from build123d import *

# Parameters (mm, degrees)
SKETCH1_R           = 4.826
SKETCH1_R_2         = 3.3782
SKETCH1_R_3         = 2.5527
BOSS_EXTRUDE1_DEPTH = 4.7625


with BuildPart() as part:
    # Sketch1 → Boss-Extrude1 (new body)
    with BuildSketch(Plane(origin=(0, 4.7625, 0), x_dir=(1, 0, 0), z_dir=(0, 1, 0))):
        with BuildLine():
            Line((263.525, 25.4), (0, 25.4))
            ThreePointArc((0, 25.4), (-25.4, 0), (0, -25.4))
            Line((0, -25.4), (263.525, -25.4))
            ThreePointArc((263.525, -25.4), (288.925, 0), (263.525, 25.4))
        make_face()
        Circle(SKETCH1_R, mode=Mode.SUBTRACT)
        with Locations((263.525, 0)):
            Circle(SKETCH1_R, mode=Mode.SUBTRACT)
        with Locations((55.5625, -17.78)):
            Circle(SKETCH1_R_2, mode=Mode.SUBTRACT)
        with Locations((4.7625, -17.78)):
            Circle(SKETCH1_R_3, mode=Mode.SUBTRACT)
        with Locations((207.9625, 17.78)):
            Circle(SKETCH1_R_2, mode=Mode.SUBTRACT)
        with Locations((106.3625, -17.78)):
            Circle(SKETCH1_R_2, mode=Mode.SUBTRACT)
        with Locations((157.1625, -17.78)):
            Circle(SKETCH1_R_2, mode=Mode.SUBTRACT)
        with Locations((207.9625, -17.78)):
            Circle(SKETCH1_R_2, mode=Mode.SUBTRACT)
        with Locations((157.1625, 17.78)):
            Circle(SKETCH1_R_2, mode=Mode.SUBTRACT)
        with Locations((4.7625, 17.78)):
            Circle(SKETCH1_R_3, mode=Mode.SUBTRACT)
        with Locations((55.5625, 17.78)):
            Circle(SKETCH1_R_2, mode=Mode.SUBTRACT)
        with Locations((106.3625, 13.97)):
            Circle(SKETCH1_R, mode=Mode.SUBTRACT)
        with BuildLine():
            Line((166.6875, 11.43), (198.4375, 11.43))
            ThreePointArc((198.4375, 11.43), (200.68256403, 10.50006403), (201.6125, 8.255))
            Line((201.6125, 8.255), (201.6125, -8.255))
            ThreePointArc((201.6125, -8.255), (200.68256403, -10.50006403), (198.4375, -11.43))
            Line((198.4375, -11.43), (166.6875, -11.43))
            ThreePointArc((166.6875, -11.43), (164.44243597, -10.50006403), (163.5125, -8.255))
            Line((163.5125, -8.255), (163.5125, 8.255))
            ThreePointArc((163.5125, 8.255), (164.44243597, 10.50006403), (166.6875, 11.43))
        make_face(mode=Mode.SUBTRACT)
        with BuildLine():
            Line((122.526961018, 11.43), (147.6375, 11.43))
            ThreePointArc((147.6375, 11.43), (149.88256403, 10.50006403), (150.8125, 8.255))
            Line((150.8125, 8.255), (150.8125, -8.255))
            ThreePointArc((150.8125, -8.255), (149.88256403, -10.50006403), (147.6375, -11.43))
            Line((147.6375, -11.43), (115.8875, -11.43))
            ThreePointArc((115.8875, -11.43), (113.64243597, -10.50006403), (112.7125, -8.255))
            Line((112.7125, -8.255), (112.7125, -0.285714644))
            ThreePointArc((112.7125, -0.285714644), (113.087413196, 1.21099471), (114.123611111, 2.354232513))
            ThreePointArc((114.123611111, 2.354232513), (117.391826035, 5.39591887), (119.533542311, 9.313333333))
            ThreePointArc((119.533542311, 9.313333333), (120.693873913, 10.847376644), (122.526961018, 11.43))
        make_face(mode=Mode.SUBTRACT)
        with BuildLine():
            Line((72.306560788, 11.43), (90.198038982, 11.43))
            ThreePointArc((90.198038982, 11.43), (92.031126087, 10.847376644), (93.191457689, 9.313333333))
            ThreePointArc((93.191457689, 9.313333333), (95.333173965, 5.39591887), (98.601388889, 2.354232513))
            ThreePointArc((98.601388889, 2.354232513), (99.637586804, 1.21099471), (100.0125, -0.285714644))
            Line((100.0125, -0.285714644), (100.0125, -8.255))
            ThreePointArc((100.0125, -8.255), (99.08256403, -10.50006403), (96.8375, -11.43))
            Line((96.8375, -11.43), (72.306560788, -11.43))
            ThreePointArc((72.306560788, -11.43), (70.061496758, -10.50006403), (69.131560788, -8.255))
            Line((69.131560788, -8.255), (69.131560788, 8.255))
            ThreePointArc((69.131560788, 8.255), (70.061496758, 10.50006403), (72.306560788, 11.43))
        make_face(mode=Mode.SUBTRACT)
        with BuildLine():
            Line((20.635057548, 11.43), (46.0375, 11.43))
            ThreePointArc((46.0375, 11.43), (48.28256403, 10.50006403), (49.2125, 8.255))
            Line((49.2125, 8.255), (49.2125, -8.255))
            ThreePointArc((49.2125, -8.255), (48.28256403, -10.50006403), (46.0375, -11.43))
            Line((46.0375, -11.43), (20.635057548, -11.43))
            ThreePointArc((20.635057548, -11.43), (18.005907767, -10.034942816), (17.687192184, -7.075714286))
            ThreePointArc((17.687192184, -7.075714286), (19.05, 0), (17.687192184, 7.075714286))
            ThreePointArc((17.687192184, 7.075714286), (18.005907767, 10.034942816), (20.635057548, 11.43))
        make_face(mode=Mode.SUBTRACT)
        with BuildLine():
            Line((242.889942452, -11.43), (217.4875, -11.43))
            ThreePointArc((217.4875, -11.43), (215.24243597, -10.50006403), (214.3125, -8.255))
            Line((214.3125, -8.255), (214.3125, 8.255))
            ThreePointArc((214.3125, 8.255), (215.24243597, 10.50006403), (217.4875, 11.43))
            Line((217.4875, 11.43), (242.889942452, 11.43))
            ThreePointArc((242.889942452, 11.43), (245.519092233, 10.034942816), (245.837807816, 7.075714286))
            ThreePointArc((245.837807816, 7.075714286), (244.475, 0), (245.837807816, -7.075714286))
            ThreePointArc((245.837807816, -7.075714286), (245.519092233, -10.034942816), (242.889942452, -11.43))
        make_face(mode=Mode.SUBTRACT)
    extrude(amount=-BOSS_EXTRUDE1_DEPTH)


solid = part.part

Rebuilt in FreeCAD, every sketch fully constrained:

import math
import FreeCAD as App
import Part
import Sketcher
Q = App.Units.Quantity

doc = App.newDocument("Part")
params = doc.addObject("Spreadsheet::Sheet", "Params")
for row, (alias, value) in enumerate([
    ("sketch1_radius", "1 in"),
    ("sketch1_diameter", "0.38 in"),
    ("sketch1_radius2", "0.75 in"),
    ("sketch1_radius3", "0.55 in"),
    ("sketch1_diameter2", "0.201 in"),
    ("pad1_length", "0.1875 in"),
], start=1):
    params.set(f"A{row}", alias)
    params.set(f"B{row}", "=" + value)
    params.setAlias(f"B{row}", alias)

body = doc.addObject("PartDesign::Body", "Body")

# Sketch on XZ plane
sketch1 = doc.addObject("Sketcher::SketchObject", "Sketch")
body.addObject(sketch1)
sketch1.AttachmentSupport = (doc.XZ_Plane, [""])
sketch1.MapMode = "FlatFace"
sketch1.AttachmentOffset = App.Placement(App.Vector(0, 0, -0.1875 * 25.4), App.Rotation())
sketch1.addGeometry([
    Part.LineSegment(App.Vector(263.525, -25.4, 0), App.Vector(0, -25.4, 0)),  # 0
    Part.ArcOfCircle(Part.Circle(App.Vector(0, 0, 0), App.Vector(0, 0, 1), 25.4), math.radians(90), math.radians(270)),  # 1
    Part.LineSegment(App.Vector(0, 25.4, 0), App.Vector(263.525, 25.4, 0)),  # 2
    Part.ArcOfCircle(Part.Circle(App.Vector(263.525, 0, 0), App.Vector(0, 0, 1), 25.4), math.radians(-90), math.radians(90)),  # 3
    Part.Circle(App.Vector(4.7625, 17.78, 0), App.Vector(0, 0, 1), 2.5527),  # 4
    Part.Circle(App.Vector(55.5625, 17.78, 0), App.Vector(0, 0, 1), 3.3782),  # 5
    Part.Circle(App.Vector(106.3625, 17.78, 0), App.Vector(0, 0, 1), 3.3782),  # 6
    Part.Circle(App.Vector(157.1625, 17.78, 0), App.Vector(0, 0, 1), 3.3782),  # 7
    Part.Circle(App.Vector(207.9625, 17.78, 0), App.Vector(0, 0, 1), 3.3782),  # 8
    Part.Circle(App.Vector(0, 0, 0), App.Vector(0, 0, 1), 4.826),  # 9
    Part.ArcOfCircle(Part.Circle(App.Vector(20.635058, -8.255, 0), App.Vector(0, 0, 1), 3.175), math.radians(158.196252), math.radians(270)),  # 10
    Part.LineSegment(App.Vector(20.635058, -11.43, 0), App.Vector(46.0375, -11.43, 0)),  # 11
    Part.ArcOfCircle(Part.Circle(App.Vector(46.0375, -8.255, 0), App.Vector(0, 0, 1), 3.175), math.radians(-90), math.radians(0)),  # 12
    Part.LineSegment(App.Vector(49.2125, -8.255, 0), App.Vector(49.2125, 8.255, 0)),  # 13
    Part.ArcOfCircle(Part.Circle(App.Vector(46.0375, 8.255, 0), App.Vector(0, 0, 1), 3.175), math.radians(0), math.radians(90)),  # 14
    Part.LineSegment(App.Vector(46.0375, 11.43, 0), App.Vector(20.635058, 11.43, 0)),  # 15
    Part.ArcOfCircle(Part.Circle(App.Vector(20.635058, 8.255, 0), App.Vector(0, 0, 1), 3.175), math.radians(90), math.radians(201.803748)),  # 16
    Part.ArcOfCircle(Part.Circle(App.Vector(0, 0, 0), App.Vector(0, 0, 1), 19.05), math.radians(-21.803748), math.radians(21.803748)),  # 17
    Part.ArcOfCircle(Part.Circle(App.Vector(72.306561, -8.255, 0), App.Vector(0, 0, 1), 3.175), math.radians(-180), math.radians(-90)),  # 18
    Part.LineSegment(App.Vector(72.306561, -11.43, 0), App.Vector(90.198039, -11.43, 0)),  # 19
    Part.ArcOfCircle(Part.Circle(App.Vector(90.198039, -8.255, 0), App.Vector(0, 0, 1), 3.175), math.radians(-90), math.radians(-19.471221)),  # 20
    Part.ArcOfCircle(Part.Circle(App.Vector(106.3625, -13.97, 0), App.Vector(0, 0, 1), 13.97), math.radians(123.748989), math.radians(160.528779)),  # 21
    Part.ArcOfCircle(Part.Circle(App.Vector(96.8375, 0.285715, 0), App.Vector(0, 0, 1), 3.175), math.radians(-56.251011), math.radians(0)),  # 22
    Part.LineSegment(App.Vector(100.0125, 0.285715, 0), App.Vector(100.0125, 8.255, 0)),  # 23
    Part.ArcOfCircle(Part.Circle(App.Vector(96.8375, 8.255, 0), App.Vector(0, 0, 1), 3.175), math.radians(0), math.radians(90)),  # 24
    Part.LineSegment(App.Vector(96.8375, 11.43, 0), App.Vector(72.306561, 11.43, 0)),  # 25
    Part.ArcOfCircle(Part.Circle(App.Vector(72.306561, 8.255, 0), App.Vector(0, 0, 1), 3.175), math.radians(90), math.radians(180)),  # 26
    Part.LineSegment(App.Vector(69.131561, 8.255, 0), App.Vector(69.131561, -8.255, 0)),  # 27
    Part.Circle(App.Vector(4.7625, -17.78, 0), App.Vector(0, 0, 1), 2.5527),  # 28
    Part.Circle(App.Vector(55.5625, -17.78, 0), App.Vector(0, 0, 1), 3.3782),  # 29
    Part.Circle(App.Vector(106.3625, -13.97, 0), App.Vector(0, 0, 1), 4.826),  # 30
    Part.ArcOfCircle(Part.Circle(App.Vector(122.526961, -8.255, 0), App.Vector(0, 0, 1), 3.175), math.radians(-160.528779), math.radians(-90)),  # 31
    Part.LineSegment(App.Vector(122.526961, -11.43, 0), App.Vector(147.6375, -11.43, 0)),  # 32
    Part.ArcOfCircle(Part.Circle(App.Vector(147.6375, -8.255, 0), App.Vector(0, 0, 1), 3.175), math.radians(-90), math.radians(0)),  # 33
    Part.LineSegment(App.Vector(150.8125, -8.255, 0), App.Vector(150.8125, 8.255, 0)),  # 34
    Part.ArcOfCircle(Part.Circle(App.Vector(147.6375, 8.255, 0), App.Vector(0, 0, 1), 3.175), math.radians(0), math.radians(90)),  # 35
    Part.LineSegment(App.Vector(147.6375, 11.43, 0), App.Vector(115.8875, 11.43, 0)),  # 36
    Part.ArcOfCircle(Part.Circle(App.Vector(115.8875, 8.255, 0), App.Vector(0, 0, 1), 3.175), math.radians(90), math.radians(180)),  # 37
    Part.LineSegment(App.Vector(112.7125, 8.255, 0), App.Vector(112.7125, 0.285715, 0)),  # 38
    Part.ArcOfCircle(Part.Circle(App.Vector(115.8875, 0.285715, 0), App.Vector(0, 0, 1), 3.175), math.radians(-180), math.radians(-123.748989)),  # 39
    Part.ArcOfCircle(Part.Circle(App.Vector(106.3625, -13.97, 0), App.Vector(0, 0, 1), 13.97), math.radians(19.471221), math.radians(56.251011)),  # 40
    Part.ArcOfCircle(Part.Circle(App.Vector(166.6875, -8.255, 0), App.Vector(0, 0, 1), 3.175), math.radians(-180), math.radians(-90)),  # 41
    Part.LineSegment(App.Vector(166.6875, -11.43, 0), App.Vector(198.4375, -11.43, 0)),  # 42
    Part.ArcOfCircle(Part.Circle(App.Vector(198.4375, -8.255, 0), App.Vector(0, 0, 1), 3.175), math.radians(-90), math.radians(0)),  # 43
    Part.LineSegment(App.Vector(201.6125, -8.255, 0), App.Vector(201.6125, 8.255, 0)),  # 44
    Part.ArcOfCircle(Part.Circle(App.Vector(198.4375, 8.255, 0), App.Vector(0, 0, 1), 3.175), math.radians(0), math.radians(90)),  # 45
    Part.LineSegment(App.Vector(198.4375, 11.43, 0), App.Vector(166.6875, 11.43, 0)),  # 46
    Part.ArcOfCircle(Part.Circle(App.Vector(166.6875, 8.255, 0), App.Vector(0, 0, 1), 3.175), math.radians(90), math.radians(180)),  # 47
    Part.LineSegment(App.Vector(163.5125, 8.255, 0), App.Vector(163.5125, -8.255, 0)),  # 48
    Part.ArcOfCircle(Part.Circle(App.Vector(242.889942, 8.255, 0), App.Vector(0, 0, 1), 3.175), math.radians(-21.803748), math.radians(90)),  # 49
    Part.LineSegment(App.Vector(242.889942, 11.43, 0), App.Vector(217.4875, 11.43, 0)),  # 50
    Part.ArcOfCircle(Part.Circle(App.Vector(217.4875, 8.255, 0), App.Vector(0, 0, 1), 3.175), math.radians(90), math.radians(180)),  # 51
    Part.LineSegment(App.Vector(214.3125, 8.255, 0), App.Vector(214.3125, -8.255, 0)),  # 52
    Part.ArcOfCircle(Part.Circle(App.Vector(217.4875, -8.255, 0), App.Vector(0, 0, 1), 3.175), math.radians(-180), math.radians(-90)),  # 53
    Part.LineSegment(App.Vector(217.4875, -11.43, 0), App.Vector(242.889942, -11.43, 0)),  # 54
    Part.ArcOfCircle(Part.Circle(App.Vector(242.889942, -8.255, 0), App.Vector(0, 0, 1), 3.175), math.radians(-90), math.radians(21.803748)),  # 55
    Part.ArcOfCircle(Part.Circle(App.Vector(263.525, 0, 0), App.Vector(0, 0, 1), 19.05), math.radians(158.196252), math.radians(201.803748)),  # 56
    Part.Circle(App.Vector(263.525, 0, 0), App.Vector(0, 0, 1), 4.826),  # 57
    Part.Circle(App.Vector(157.1625, -17.78, 0), App.Vector(0, 0, 1), 3.3782),  # 58
    Part.Circle(App.Vector(207.9625, -17.78, 0), App.Vector(0, 0, 1), 3.3782),  # 59
], False)
sketch1.addConstraint([
    Sketcher.Constraint("Tangent", 0, 2, 1, 2),
    Sketcher.Constraint("Tangent", 1, 1, 2, 1),
    Sketcher.Constraint("Tangent", 2, 2, 3, 2),
    Sketcher.Constraint("Tangent", 3, 1, 0, 1),
    Sketcher.Constraint("Tangent", 10, 2, 11, 1),
    Sketcher.Constraint("Tangent", 11, 2, 12, 1),
    Sketcher.Constraint("Tangent", 12, 2, 13, 1),
    Sketcher.Constraint("Tangent", 13, 2, 14, 1),
    Sketcher.Constraint("Tangent", 14, 2, 15, 1),
    Sketcher.Constraint("Tangent", 15, 2, 16, 1),
    Sketcher.Constraint("Tangent", 16, 2, 17, 2),
    Sketcher.Constraint("Tangent", 17, 1, 10, 1),
    Sketcher.Constraint("Tangent", 18, 2, 19, 1),
    Sketcher.Constraint("Tangent", 19, 2, 20, 1),
    Sketcher.Constraint("Tangent", 20, 2, 21, 2),
    Sketcher.Constraint("Tangent", 21, 1, 22, 1),
    Sketcher.Constraint("Tangent", 22, 2, 23, 1),
    Sketcher.Constraint("Tangent", 23, 2, 24, 1),
    Sketcher.Constraint("Tangent", 24, 2, 25, 1),
    Sketcher.Constraint("Tangent", 25, 2, 26, 1),
    Sketcher.Constraint("Tangent", 26, 2, 27, 1),
    Sketcher.Constraint("Tangent", 27, 2, 18, 1),
    Sketcher.Constraint("Tangent", 31, 2, 32, 1),
    Sketcher.Constraint("Tangent", 32, 2, 33, 1),
    Sketcher.Constraint("Tangent", 33, 2, 34, 1),
    Sketcher.Constraint("Tangent", 34, 2, 35, 1),
    Sketcher.Constraint("Tangent", 35, 2, 36, 1),
    Sketcher.Constraint("Tangent", 36, 2, 37, 1),
    Sketcher.Constraint("Tangent", 37, 2, 38, 1),
    Sketcher.Constraint("Tangent", 38, 2, 39, 1),
    Sketcher.Constraint("Tangent", 39, 2, 40, 2),
    Sketcher.Constraint("Tangent", 40, 1, 31, 1),
    Sketcher.Constraint("Tangent", 41, 2, 42, 1),
    Sketcher.Constraint("Tangent", 42, 2, 43, 1),
    Sketcher.Constraint("Tangent", 43, 2, 44, 1),
    Sketcher.Constraint("Tangent", 44, 2, 45, 1),
    Sketcher.Constraint("Tangent", 45, 2, 46, 1),
    Sketcher.Constraint("Tangent", 46, 2, 47, 1),
    Sketcher.Constraint("Tangent", 47, 2, 48, 1),
    Sketcher.Constraint("Tangent", 48, 2, 41, 1),
    Sketcher.Constraint("Tangent", 49, 2, 50, 1),
    Sketcher.Constraint("Tangent", 50, 2, 51, 1),
    Sketcher.Constraint("Tangent", 51, 2, 52, 1),
    Sketcher.Constraint("Tangent", 52, 2, 53, 1),
    Sketcher.Constraint("Tangent", 53, 2, 54, 1),
    Sketcher.Constraint("Tangent", 54, 2, 55, 1),
    Sketcher.Constraint("Tangent", 55, 2, 56, 2),
    Sketcher.Constraint("Tangent", 56, 1, 49, 1),
    Sketcher.Constraint("Horizontal", 0),
    Sketcher.Constraint("Horizontal", 2),
    Sketcher.Constraint("Horizontal", 11),
    Sketcher.Constraint("Vertical", 13),
    Sketcher.Constraint("Horizontal", 15),
    Sketcher.Constraint("Horizontal", 19),
    Sketcher.Constraint("Vertical", 23),
    Sketcher.Constraint("Horizontal", 25),
    Sketcher.Constraint("Vertical", 27),
    Sketcher.Constraint("Horizontal", 32),
    Sketcher.Constraint("Vertical", 34),
    Sketcher.Constraint("Horizontal", 36),
    Sketcher.Constraint("Vertical", 38),
    Sketcher.Constraint("Horizontal", 42),
    Sketcher.Constraint("Vertical", 44),
    Sketcher.Constraint("Horizontal", 46),
    Sketcher.Constraint("Vertical", 48),
    Sketcher.Constraint("Horizontal", 50),
    Sketcher.Constraint("Vertical", 52),
    Sketcher.Constraint("Horizontal", 54),
    Sketcher.Constraint("Coincident", 1, 3, -1, 1),
    Sketcher.Constraint("Coincident", 9, 3, -1, 1),
    Sketcher.Constraint("Coincident", 17, 3, -1, 1),
    Sketcher.Constraint("Coincident", 30, 3, 21, 3),
    Sketcher.Constraint("Coincident", 40, 3, 21, 3),
    Sketcher.Constraint("Coincident", 56, 3, 3, 3),
    Sketcher.Constraint("Coincident", 57, 3, 3, 3),
    Sketcher.Constraint("Equal", 5, 6),
    Sketcher.Constraint("Equal", 6, 7),
    Sketcher.Constraint("Equal", 7, 8),
    Sketcher.Constraint("Equal", 10, 12),
    Sketcher.Constraint("Equal", 12, 14),
    Sketcher.Constraint("Equal", 14, 16),
    Sketcher.Constraint("Equal", 16, 18),
    Sketcher.Constraint("Equal", 18, 20),
    Sketcher.Constraint("Equal", 20, 22),
    Sketcher.Constraint("Equal", 22, 24),
    Sketcher.Constraint("Equal", 24, 26),
    Sketcher.Constraint("Equal", 4, 28),
    Sketcher.Constraint("Equal", 8, 29),
    Sketcher.Constraint("Equal", 9, 30),
    Sketcher.Constraint("Equal", 26, 31),
    Sketcher.Constraint("Equal", 31, 33),
    Sketcher.Constraint("Equal", 33, 35),
    Sketcher.Constraint("Equal", 35, 37),
    Sketcher.Constraint("Equal", 37, 39),
    Sketcher.Constraint("Equal", 21, 40),
    Sketcher.Constraint("Equal", 39, 41),
    Sketcher.Constraint("Equal", 41, 43),
    Sketcher.Constraint("Equal", 43, 45),
    Sketcher.Constraint("Equal", 45, 47),
    Sketcher.Constraint("Equal", 47, 49),
    Sketcher.Constraint("Equal", 49, 51),
    Sketcher.Constraint("Equal", 51, 53),
    Sketcher.Constraint("Equal", 53, 55),
    Sketcher.Constraint("Equal", 17, 56),
    Sketcher.Constraint("Equal", 30, 57),
    Sketcher.Constraint("Equal", 29, 58),
    Sketcher.Constraint("Equal", 58, 59),
    Sketcher.Constraint("Symmetric", 4, 3, 28, 3, -1),
    Sketcher.Constraint("Symmetric", 5, 3, 29, 3, -1),
    Sketcher.Constraint("Symmetric", 7, 3, 58, 3, -1),
    Sketcher.Constraint("Symmetric", 8, 3, 59, 3, -1),
    Sketcher.Constraint("Horizontal", 4, 3, 5, 3),
    Sketcher.Constraint("Horizontal", 5, 3, 6, 3),
    Sketcher.Constraint("Horizontal", 6, 3, 7, 3),
    Sketcher.Constraint("Horizontal", 7, 3, 8, 3),
    Sketcher.Constraint("Horizontal", 12, 3, 18, 3),
    Sketcher.Constraint("Horizontal", 16, 3, 24, 3),
    Sketcher.Constraint("Horizontal", 20, 3, 31, 3),
    Sketcher.Constraint("Horizontal", 26, 3, 35, 3),
    Sketcher.Constraint("Horizontal", 22, 3, 39, 3),
    Sketcher.Constraint("Horizontal", 33, 3, 41, 3),
    Sketcher.Constraint("Horizontal", 37, 3, 45, 3),
    Sketcher.Constraint("Horizontal", 47, 3, 49, 3),
    Sketcher.Constraint("Horizontal", 43, 3, 53, 3),
    Sketcher.Constraint("Vertical", 10, 3, 16, 3),
    Sketcher.Constraint("Vertical", 6, 3, 21, 3),
    Sketcher.Constraint("Equal", 36, 42),
    Sketcher.Constraint("Equal", 15, 50),
    Sketcher.Constraint("Radius", 1, Q("1 in")),
    Sketcher.Constraint("Diameter", 9, Q("0.38 in")),
    Sketcher.Constraint("Radius", 17, Q("0.75 in")),
    Sketcher.Constraint("Radius", 21, Q("0.55 in")),
    Sketcher.Constraint("Diameter", 4, Q("0.201 in")),
    Sketcher.Constraint("Diameter", 5, Q("0.266 in")),
    Sketcher.Constraint("Radius", 10, Q("0.125 in")),
    Sketcher.Constraint("DistanceX", 36, 2, 36, 1, Q("1.25 in")),
    Sketcher.Constraint("DistanceY", 13, 1, 13, 2, Q("0.65 in")),
    Sketcher.Constraint("DistanceY", -1, 1, 4, 3, Q("0.7 in")),
    Sketcher.Constraint("DistanceX", 0, 2, 0, 1, Q("10.375 in")),
    Sketcher.Constraint("DistanceY", 21, 3, -1, 1, Q("0.55 in")),
    Sketcher.Constraint("DistanceX", -1, 1, 4, 3, Q("0.1875 in")),
    Sketcher.Constraint("DistanceX", -1, 1, 5, 3, Q("2.1875 in")),
    Sketcher.Constraint("DistanceX", -1, 1, 6, 3, Q("4.1875 in")),
    Sketcher.Constraint("DistanceX", -1, 1, 7, 3, Q("6.1875 in")),
    Sketcher.Constraint("DistanceX", -1, 1, 8, 3, Q("8.1875 in")),
    Sketcher.Constraint("DistanceX", -1, 1, 12, 3, Q("1.8125 in")),
    Sketcher.Constraint("DistanceX", -1, 1, 22, 3, Q("3.8125 in")),
    Sketcher.Constraint("DistanceX", -1, 1, 41, 3, Q("6.5625 in")),
    Sketcher.Constraint("DistanceX", 19, 1, 19, 2, Q("17.891478 mm")),
])
sketch1.setExpression("Constraints[128]", "Params.sketch1_radius")
sketch1.setExpression("Constraints[129]", "Params.sketch1_diameter")
sketch1.setExpression("Constraints[130]", "Params.sketch1_radius2")
sketch1.setExpression("Constraints[131]", "Params.sketch1_radius3")
sketch1.setExpression("Constraints[132]", "Params.sketch1_diameter2")
pad1 = doc.addObject("PartDesign::Pad", "Pad")
body.addObject(pad1)
pad1.Profile = sketch1
pad1.setExpression("Length", "Params.pad1_length")

doc.recompute()
